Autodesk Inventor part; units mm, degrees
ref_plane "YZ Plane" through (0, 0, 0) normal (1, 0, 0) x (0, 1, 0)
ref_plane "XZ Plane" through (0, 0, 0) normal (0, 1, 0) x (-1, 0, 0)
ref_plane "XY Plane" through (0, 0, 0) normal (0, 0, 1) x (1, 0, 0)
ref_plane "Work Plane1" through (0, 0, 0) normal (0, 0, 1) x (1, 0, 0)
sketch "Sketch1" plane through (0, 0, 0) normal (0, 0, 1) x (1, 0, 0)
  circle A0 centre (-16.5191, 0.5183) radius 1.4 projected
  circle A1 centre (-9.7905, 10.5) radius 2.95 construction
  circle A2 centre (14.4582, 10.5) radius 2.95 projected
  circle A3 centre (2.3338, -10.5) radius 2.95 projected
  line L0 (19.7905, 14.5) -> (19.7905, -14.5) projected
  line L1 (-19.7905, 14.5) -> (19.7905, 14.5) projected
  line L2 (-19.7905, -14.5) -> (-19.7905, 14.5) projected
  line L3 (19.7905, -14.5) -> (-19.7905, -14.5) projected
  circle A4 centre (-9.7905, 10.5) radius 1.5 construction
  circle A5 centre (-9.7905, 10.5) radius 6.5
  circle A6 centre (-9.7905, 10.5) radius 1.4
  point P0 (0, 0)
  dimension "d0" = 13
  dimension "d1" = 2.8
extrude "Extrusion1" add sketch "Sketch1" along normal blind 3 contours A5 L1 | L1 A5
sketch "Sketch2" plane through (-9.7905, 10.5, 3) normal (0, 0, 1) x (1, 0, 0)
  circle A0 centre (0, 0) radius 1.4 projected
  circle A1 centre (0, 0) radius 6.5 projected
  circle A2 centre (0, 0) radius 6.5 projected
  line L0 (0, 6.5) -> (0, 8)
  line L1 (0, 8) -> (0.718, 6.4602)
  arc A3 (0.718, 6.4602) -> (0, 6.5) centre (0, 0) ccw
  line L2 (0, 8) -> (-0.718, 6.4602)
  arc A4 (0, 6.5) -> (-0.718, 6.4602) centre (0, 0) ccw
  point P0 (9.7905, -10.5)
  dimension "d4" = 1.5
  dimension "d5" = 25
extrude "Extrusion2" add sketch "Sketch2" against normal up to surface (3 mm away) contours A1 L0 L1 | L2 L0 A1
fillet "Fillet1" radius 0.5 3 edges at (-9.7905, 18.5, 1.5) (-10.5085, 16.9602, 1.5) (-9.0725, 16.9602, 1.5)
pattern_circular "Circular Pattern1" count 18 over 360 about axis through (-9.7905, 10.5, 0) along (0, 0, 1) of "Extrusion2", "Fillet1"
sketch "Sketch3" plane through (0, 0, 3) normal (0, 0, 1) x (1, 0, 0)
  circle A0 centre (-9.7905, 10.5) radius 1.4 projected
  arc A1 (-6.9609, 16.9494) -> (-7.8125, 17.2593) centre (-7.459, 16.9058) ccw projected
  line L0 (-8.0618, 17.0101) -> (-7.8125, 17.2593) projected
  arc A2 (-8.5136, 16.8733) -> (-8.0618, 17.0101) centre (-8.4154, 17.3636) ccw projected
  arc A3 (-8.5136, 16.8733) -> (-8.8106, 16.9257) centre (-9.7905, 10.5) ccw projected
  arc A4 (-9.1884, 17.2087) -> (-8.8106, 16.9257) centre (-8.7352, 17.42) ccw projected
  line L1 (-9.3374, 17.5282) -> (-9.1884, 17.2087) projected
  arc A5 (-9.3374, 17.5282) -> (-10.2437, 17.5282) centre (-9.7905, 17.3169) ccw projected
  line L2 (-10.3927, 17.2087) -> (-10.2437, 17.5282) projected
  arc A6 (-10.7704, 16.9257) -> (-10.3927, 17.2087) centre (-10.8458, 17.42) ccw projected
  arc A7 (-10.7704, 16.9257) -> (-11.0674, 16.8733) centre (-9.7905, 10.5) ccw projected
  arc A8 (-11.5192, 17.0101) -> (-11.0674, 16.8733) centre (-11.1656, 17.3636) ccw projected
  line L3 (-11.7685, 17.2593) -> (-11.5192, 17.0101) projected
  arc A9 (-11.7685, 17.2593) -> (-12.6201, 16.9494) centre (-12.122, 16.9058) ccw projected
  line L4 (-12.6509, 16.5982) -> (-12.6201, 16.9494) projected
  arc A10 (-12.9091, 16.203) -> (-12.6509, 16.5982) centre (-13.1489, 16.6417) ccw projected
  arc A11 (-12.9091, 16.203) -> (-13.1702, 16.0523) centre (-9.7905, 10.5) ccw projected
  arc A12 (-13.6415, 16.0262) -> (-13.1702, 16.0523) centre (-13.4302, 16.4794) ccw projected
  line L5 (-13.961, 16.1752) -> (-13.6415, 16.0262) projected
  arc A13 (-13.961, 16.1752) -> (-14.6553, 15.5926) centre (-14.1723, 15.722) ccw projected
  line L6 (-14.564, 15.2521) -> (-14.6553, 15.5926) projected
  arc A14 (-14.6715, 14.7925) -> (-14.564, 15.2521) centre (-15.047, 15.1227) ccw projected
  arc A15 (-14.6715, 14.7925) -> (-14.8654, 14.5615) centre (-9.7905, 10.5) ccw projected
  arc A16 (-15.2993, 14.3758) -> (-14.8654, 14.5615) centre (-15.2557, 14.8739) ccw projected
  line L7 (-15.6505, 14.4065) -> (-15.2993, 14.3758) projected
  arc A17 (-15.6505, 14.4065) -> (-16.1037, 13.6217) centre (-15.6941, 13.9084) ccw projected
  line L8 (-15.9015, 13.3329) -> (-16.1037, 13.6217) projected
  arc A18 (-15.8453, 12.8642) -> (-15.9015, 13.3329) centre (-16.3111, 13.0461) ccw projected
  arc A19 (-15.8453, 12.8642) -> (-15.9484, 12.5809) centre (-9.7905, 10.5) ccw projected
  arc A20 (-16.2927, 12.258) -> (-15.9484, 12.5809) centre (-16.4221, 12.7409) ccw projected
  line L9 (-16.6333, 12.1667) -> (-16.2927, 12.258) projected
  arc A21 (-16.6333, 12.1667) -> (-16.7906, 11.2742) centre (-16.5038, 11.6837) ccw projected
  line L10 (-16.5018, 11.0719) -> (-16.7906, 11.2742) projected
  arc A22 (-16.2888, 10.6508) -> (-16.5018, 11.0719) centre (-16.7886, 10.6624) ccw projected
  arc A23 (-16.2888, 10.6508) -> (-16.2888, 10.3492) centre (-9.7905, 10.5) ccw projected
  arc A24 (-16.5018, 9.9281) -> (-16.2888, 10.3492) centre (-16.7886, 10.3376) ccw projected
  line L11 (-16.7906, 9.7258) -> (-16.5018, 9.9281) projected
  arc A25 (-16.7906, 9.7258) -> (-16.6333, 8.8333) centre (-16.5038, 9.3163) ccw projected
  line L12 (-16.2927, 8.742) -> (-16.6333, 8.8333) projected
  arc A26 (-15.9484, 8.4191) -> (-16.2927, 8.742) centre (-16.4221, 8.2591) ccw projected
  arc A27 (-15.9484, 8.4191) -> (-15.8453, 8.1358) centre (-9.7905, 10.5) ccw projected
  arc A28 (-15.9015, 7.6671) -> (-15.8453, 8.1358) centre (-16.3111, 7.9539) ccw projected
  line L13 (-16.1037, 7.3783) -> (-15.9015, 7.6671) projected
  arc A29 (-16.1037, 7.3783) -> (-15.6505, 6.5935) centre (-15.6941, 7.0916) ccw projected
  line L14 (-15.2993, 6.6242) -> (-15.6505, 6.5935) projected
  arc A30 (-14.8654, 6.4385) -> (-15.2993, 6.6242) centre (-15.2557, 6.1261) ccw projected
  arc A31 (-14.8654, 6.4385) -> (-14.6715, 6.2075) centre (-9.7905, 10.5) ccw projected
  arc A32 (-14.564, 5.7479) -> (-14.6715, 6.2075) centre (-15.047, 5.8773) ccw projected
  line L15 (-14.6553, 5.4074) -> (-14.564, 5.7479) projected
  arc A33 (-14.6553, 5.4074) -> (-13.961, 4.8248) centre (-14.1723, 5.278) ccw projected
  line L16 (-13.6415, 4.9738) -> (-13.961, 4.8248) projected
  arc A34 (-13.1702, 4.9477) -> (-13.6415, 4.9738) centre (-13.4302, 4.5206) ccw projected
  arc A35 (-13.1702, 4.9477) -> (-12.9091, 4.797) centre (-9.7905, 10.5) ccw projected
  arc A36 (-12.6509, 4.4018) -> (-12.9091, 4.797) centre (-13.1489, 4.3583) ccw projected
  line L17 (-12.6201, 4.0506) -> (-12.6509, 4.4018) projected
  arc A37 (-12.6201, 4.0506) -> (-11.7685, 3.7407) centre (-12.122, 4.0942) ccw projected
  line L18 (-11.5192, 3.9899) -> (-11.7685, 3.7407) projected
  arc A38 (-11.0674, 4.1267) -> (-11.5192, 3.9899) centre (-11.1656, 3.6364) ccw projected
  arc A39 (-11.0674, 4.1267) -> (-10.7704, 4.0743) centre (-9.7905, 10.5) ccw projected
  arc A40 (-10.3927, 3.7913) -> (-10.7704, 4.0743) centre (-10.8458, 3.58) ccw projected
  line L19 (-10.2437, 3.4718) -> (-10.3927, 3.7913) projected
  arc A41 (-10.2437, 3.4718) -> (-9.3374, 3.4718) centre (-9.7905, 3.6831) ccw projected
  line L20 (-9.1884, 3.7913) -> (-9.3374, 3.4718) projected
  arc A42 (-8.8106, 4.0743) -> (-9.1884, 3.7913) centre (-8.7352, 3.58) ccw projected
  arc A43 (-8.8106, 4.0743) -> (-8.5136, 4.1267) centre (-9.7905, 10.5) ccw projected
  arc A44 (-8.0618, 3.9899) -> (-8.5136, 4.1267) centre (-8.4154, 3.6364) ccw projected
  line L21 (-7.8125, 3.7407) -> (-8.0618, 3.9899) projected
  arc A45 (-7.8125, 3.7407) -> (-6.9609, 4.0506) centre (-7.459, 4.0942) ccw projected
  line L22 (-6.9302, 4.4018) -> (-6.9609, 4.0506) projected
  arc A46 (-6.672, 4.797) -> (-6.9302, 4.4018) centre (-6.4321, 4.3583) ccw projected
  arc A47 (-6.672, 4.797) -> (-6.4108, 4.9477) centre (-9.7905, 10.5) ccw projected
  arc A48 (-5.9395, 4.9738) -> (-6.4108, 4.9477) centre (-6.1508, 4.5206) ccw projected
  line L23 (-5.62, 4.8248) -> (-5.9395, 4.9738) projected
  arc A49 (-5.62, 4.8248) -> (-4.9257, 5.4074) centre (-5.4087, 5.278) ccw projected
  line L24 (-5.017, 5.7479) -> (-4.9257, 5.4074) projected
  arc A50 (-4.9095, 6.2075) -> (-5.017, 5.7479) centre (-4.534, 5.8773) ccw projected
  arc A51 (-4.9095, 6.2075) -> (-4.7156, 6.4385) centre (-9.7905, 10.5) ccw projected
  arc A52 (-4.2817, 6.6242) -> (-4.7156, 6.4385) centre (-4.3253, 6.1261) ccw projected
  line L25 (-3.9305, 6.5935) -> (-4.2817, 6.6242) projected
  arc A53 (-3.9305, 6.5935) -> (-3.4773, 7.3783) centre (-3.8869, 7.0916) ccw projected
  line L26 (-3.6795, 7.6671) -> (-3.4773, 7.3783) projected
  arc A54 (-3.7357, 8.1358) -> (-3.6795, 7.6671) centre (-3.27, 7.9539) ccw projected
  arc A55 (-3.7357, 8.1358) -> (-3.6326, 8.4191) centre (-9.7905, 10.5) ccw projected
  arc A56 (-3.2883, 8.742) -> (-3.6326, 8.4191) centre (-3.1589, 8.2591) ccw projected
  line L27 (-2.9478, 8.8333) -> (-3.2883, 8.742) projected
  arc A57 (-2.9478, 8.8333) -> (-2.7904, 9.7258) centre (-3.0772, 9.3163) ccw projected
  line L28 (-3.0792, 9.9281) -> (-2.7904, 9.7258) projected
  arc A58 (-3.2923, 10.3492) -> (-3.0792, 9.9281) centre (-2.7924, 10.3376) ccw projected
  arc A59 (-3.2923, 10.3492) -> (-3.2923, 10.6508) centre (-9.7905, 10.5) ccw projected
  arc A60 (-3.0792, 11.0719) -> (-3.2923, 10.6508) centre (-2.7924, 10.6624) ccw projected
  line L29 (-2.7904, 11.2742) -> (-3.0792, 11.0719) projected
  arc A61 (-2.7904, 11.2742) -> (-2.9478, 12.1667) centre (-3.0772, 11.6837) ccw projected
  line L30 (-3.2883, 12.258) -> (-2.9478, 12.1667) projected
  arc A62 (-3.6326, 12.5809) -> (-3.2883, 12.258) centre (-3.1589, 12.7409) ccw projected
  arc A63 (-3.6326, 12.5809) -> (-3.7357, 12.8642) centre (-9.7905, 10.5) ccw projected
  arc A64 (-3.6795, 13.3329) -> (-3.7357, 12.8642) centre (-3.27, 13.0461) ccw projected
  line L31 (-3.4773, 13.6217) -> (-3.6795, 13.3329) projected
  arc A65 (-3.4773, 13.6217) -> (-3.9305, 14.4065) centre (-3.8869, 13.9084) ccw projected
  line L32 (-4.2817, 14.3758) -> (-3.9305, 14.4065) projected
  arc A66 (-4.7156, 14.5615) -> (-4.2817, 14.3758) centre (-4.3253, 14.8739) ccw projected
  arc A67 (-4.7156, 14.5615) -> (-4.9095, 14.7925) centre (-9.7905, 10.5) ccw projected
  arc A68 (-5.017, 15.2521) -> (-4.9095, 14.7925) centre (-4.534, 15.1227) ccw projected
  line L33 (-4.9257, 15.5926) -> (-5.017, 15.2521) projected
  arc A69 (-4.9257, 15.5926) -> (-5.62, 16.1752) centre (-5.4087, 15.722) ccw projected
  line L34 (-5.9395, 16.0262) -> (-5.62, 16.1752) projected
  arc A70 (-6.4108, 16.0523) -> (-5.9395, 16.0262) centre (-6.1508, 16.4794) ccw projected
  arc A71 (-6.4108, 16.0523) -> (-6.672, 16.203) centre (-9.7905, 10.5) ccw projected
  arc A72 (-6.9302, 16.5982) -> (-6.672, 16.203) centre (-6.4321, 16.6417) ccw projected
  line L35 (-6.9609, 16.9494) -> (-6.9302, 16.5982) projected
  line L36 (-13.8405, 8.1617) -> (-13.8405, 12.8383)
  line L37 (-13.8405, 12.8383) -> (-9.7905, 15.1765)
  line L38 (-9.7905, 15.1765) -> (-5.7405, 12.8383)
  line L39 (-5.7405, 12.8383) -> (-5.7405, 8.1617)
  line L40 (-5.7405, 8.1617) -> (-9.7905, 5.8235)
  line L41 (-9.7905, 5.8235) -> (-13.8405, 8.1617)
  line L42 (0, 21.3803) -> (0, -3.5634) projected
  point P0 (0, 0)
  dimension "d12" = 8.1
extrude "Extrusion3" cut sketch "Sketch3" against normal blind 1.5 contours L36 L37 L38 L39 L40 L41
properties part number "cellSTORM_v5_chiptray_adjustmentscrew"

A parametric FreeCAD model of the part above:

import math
import FreeCAD as App
import Part
import Sketcher

V = App.Vector
Q = App.Units.Quantity


def edges_at(feature, points):
    """Names of the edges that pass closest to the given points."""
    edges = feature.Shape.Edges
    near = lambda p: min(range(len(edges)), key=lambda i: edges[i].distToShape(Part.Vertex(*p))[0])
    return sorted({f"Edge{near(p) + 1}" for p in points})

doc = App.newDocument("Part")
params = doc.addObject("Spreadsheet::Sheet", "Params")
for row, (alias, value) in enumerate([
    ("sketch1_diameter", "13 mm"),
    ("sketch1_diameter2", "2.8 mm"),
    ("pad1_length", "3 mm"),
    ("sketch2_radius", "6.5 mm"),
    ("pad2_length", "3 mm"),
    ("fillet_radius", "0.5 mm"),
    ("sketch3_diameter", "2.8 mm"),
    ("pocket1_length", "1.5 mm"),
], start=1):
    params.set(f"A{row}", alias)
    params.set(f"B{row}", "=" + value)
    params.setAlias(f"B{row}", alias)

body = doc.addObject("PartDesign::Body", "Body")

# Sketch on XY plane
sketch1 = doc.addObject("Sketcher::SketchObject", "Sketch")
body.addObject(sketch1)
sketch1.AttachmentSupport = (doc.XY_Plane, [""])
sketch1.MapMode = "FlatFace"
sketch1.addGeometry([
    Part.Circle(V(-9.7905, 10.5, 0), V(0, 0, 1), 6.5),
    Part.Circle(V(-9.7905, 10.5, 0), V(0, 0, 1), 1.4),
], False)
sketch1.addConstraint([
    Sketcher.Constraint("Coincident", 1, 3, 0, 3),
    Sketcher.Constraint("Diameter", 0, 13.0),
    Sketcher.Constraint("Diameter", 1, 2.8),
    Sketcher.Constraint("DistanceY", -1, 1, 0, 3, 10.5),
    Sketcher.Constraint("DistanceX", 0, 3, -1, 1, 9.7905),
])
sketch1.setExpression("Constraints[1]", "Params.sketch1_diameter")
sketch1.setExpression("Constraints[2]", "Params.sketch1_diameter2")
pad1 = doc.addObject("PartDesign::Pad", "Pad")
body.addObject(pad1)
pad1.Profile = sketch1
pad1.setExpression("Length", "Params.pad1_length")

# Sketch on XY plane
sketch2 = doc.addObject("Sketcher::SketchObject", "Sketch001")
body.addObject(sketch2)
sketch2.AttachmentSupport = (doc.XY_Plane, [""])
sketch2.MapMode = "FlatFace"
sketch2.AttachmentOffset = App.Placement(V(0, 0, 3), App.Rotation())
sketch2.addGeometry([
    Part.LineSegment(V(-9.0725, 16.9602, 0), V(-9.7905, 18.5, 0)),
    Part.LineSegment(V(-9.7905, 18.5, 0), V(-10.5085, 16.9602, 0)),
    Part.ArcOfCircle(Part.Circle(V(-9.7905, 10.5, 0), V(0, 0, 1), 6.5), math.radians(83.658056), math.radians(96.341944)),
], False)
sketch2.addConstraint([
    Sketcher.Constraint("Coincident", 0, 2, 1, 1),
    Sketcher.Constraint("Coincident", 1, 2, 2, 2),
    Sketcher.Constraint("Coincident", 2, 1, 0, 1),
    Sketcher.Constraint("Horizontal", 1, 2, 2, 1),
    Sketcher.Constraint("Vertical", 2, 3, 0, 2),
    Sketcher.Constraint("Radius", 2, 6.5),
    Sketcher.Constraint("Angle", 0, Q("114.9994 deg")),
    Sketcher.Constraint("DistanceY", 2, 3, 0, 2, 8.0),
    Sketcher.Constraint("DistanceY", -1, 1, 2, 3, 10.5),
    Sketcher.Constraint("DistanceX", 2, 3, -1, 1, 9.7905),
])
sketch2.setExpression("Constraints[5]", "Params.sketch2_radius")
pad2 = doc.addObject("PartDesign::Pad", "Pad001")
body.addObject(pad2)
pad2.Profile = sketch2
pad2.setExpression("Length", "Params.pad2_length")
pad2.Reversed = True
doc.recompute()

fillet = doc.addObject("PartDesign::Fillet", "Fillet")
body.addObject(fillet)
fillet.Base = (pad2, edges_at(pad2, [(-9.79, 18.5, 1.5), (-10.508, 16.96, 1.5), (-9.072, 16.96, 1.5)]))
fillet.setExpression("Radius", "Params.fillet_radius")
doc.recompute()

datumline = doc.addObject("PartDesign::Line", "DatumLine")
body.addObject(datumline)
datumline.Placement = App.Placement(V(-9.7905, 10.5, 0), App.Rotation(V(0, 0, 1), V(0, 0, 1)))
polarpattern = doc.addObject("PartDesign::PolarPattern", "PolarPattern")
body.addObject(polarpattern)
polarpattern.Originals = [pad2, fillet]
polarpattern.Axis = (datumline, [""])
polarpattern.Angle = 360
polarpattern.Occurrences = 18
body.Tip = polarpattern

# Sketch on XY plane
sketch3 = doc.addObject("Sketcher::SketchObject", "Sketch002")
body.addObject(sketch3)
sketch3.AttachmentSupport = (doc.XY_Plane, [""])
sketch3.MapMode = "FlatFace"
sketch3.AttachmentOffset = App.Placement(V(0, 0, 3), App.Rotation())
sketch3.addGeometry([
    Part.LineSegment(V(-13.8405, 12.8383, 0), V(-13.8405, 8.1617, 0)),  # 0
    Part.LineSegment(V(-13.8405, 8.1617, 0), V(-9.7905, 5.8235, 0)),  # 1
    Part.LineSegment(V(-9.7905, 5.8235, 0), V(-5.7405, 8.1617, 0)),  # 2
    Part.LineSegment(V(-5.7405, 8.1617, 0), V(-5.7405, 12.8383, 0)),  # 3
    Part.LineSegment(V(-5.7405, 12.8383, 0), V(-9.7905, 15.1765, 0)),  # 4
    Part.LineSegment(V(-9.7905, 15.1765, 0), V(-13.8405, 12.8383, 0)),  # 5
    Part.Circle(V(-9.7905, 10.5, 0), V(0, 0, 1), 1.4),  # 6
], False)
sketch3.addConstraint([
    Sketcher.Constraint("Coincident", 0, 2, 1, 1),
    Sketcher.Constraint("Coincident", 1, 2, 2, 1),
    Sketcher.Constraint("Coincident", 2, 2, 3, 1),
    Sketcher.Constraint("Coincident", 3, 2, 4, 1),
    Sketcher.Constraint("Coincident", 4, 2, 5, 1),
    Sketcher.Constraint("Coincident", 5, 2, 0, 1),
    Sketcher.Constraint("Vertical", 0),
    Sketcher.Constraint("Vertical", 3),
    Sketcher.Constraint("Parallel", 1, 4),
    Sketcher.Constraint("Parallel", 2, 5),
    Sketcher.Constraint("Horizontal", 0, 2, 2, 2),
    Sketcher.Constraint("Horizontal", 3, 2, 5, 2),
    Sketcher.Constraint("Vertical", 6, 3, 1, 2),
    Sketcher.Constraint("Vertical", 1, 2, 4, 2),
    Sketcher.Constraint("Diameter", 6, 2.8),
    Sketcher.Constraint("DistanceX", 0, 2, 2, 2, 8.1),
    Sketcher.Constraint("Angle", 1, Q("-29.9993 deg")),
    Sketcher.Constraint("DistanceY", -1, 1, 6, 3, 10.5),
    Sketcher.Constraint("DistanceY", 0, 2, 0, 1, 4.6766),
    Sketcher.Constraint("DistanceX", 6, 3, -1, 1, 9.7905),
    Sketcher.Constraint("DistanceY", -1, 1, 0, 2, 8.1617),
])
sketch3.setExpression("Constraints[14]", "Params.sketch3_diameter")
pocket1 = doc.addObject("PartDesign::Pocket", "Pocket")
body.addObject(pocket1)
pocket1.Profile = sketch3
pocket1.setExpression("Length", "Params.pocket1_length")

doc.recompute()
